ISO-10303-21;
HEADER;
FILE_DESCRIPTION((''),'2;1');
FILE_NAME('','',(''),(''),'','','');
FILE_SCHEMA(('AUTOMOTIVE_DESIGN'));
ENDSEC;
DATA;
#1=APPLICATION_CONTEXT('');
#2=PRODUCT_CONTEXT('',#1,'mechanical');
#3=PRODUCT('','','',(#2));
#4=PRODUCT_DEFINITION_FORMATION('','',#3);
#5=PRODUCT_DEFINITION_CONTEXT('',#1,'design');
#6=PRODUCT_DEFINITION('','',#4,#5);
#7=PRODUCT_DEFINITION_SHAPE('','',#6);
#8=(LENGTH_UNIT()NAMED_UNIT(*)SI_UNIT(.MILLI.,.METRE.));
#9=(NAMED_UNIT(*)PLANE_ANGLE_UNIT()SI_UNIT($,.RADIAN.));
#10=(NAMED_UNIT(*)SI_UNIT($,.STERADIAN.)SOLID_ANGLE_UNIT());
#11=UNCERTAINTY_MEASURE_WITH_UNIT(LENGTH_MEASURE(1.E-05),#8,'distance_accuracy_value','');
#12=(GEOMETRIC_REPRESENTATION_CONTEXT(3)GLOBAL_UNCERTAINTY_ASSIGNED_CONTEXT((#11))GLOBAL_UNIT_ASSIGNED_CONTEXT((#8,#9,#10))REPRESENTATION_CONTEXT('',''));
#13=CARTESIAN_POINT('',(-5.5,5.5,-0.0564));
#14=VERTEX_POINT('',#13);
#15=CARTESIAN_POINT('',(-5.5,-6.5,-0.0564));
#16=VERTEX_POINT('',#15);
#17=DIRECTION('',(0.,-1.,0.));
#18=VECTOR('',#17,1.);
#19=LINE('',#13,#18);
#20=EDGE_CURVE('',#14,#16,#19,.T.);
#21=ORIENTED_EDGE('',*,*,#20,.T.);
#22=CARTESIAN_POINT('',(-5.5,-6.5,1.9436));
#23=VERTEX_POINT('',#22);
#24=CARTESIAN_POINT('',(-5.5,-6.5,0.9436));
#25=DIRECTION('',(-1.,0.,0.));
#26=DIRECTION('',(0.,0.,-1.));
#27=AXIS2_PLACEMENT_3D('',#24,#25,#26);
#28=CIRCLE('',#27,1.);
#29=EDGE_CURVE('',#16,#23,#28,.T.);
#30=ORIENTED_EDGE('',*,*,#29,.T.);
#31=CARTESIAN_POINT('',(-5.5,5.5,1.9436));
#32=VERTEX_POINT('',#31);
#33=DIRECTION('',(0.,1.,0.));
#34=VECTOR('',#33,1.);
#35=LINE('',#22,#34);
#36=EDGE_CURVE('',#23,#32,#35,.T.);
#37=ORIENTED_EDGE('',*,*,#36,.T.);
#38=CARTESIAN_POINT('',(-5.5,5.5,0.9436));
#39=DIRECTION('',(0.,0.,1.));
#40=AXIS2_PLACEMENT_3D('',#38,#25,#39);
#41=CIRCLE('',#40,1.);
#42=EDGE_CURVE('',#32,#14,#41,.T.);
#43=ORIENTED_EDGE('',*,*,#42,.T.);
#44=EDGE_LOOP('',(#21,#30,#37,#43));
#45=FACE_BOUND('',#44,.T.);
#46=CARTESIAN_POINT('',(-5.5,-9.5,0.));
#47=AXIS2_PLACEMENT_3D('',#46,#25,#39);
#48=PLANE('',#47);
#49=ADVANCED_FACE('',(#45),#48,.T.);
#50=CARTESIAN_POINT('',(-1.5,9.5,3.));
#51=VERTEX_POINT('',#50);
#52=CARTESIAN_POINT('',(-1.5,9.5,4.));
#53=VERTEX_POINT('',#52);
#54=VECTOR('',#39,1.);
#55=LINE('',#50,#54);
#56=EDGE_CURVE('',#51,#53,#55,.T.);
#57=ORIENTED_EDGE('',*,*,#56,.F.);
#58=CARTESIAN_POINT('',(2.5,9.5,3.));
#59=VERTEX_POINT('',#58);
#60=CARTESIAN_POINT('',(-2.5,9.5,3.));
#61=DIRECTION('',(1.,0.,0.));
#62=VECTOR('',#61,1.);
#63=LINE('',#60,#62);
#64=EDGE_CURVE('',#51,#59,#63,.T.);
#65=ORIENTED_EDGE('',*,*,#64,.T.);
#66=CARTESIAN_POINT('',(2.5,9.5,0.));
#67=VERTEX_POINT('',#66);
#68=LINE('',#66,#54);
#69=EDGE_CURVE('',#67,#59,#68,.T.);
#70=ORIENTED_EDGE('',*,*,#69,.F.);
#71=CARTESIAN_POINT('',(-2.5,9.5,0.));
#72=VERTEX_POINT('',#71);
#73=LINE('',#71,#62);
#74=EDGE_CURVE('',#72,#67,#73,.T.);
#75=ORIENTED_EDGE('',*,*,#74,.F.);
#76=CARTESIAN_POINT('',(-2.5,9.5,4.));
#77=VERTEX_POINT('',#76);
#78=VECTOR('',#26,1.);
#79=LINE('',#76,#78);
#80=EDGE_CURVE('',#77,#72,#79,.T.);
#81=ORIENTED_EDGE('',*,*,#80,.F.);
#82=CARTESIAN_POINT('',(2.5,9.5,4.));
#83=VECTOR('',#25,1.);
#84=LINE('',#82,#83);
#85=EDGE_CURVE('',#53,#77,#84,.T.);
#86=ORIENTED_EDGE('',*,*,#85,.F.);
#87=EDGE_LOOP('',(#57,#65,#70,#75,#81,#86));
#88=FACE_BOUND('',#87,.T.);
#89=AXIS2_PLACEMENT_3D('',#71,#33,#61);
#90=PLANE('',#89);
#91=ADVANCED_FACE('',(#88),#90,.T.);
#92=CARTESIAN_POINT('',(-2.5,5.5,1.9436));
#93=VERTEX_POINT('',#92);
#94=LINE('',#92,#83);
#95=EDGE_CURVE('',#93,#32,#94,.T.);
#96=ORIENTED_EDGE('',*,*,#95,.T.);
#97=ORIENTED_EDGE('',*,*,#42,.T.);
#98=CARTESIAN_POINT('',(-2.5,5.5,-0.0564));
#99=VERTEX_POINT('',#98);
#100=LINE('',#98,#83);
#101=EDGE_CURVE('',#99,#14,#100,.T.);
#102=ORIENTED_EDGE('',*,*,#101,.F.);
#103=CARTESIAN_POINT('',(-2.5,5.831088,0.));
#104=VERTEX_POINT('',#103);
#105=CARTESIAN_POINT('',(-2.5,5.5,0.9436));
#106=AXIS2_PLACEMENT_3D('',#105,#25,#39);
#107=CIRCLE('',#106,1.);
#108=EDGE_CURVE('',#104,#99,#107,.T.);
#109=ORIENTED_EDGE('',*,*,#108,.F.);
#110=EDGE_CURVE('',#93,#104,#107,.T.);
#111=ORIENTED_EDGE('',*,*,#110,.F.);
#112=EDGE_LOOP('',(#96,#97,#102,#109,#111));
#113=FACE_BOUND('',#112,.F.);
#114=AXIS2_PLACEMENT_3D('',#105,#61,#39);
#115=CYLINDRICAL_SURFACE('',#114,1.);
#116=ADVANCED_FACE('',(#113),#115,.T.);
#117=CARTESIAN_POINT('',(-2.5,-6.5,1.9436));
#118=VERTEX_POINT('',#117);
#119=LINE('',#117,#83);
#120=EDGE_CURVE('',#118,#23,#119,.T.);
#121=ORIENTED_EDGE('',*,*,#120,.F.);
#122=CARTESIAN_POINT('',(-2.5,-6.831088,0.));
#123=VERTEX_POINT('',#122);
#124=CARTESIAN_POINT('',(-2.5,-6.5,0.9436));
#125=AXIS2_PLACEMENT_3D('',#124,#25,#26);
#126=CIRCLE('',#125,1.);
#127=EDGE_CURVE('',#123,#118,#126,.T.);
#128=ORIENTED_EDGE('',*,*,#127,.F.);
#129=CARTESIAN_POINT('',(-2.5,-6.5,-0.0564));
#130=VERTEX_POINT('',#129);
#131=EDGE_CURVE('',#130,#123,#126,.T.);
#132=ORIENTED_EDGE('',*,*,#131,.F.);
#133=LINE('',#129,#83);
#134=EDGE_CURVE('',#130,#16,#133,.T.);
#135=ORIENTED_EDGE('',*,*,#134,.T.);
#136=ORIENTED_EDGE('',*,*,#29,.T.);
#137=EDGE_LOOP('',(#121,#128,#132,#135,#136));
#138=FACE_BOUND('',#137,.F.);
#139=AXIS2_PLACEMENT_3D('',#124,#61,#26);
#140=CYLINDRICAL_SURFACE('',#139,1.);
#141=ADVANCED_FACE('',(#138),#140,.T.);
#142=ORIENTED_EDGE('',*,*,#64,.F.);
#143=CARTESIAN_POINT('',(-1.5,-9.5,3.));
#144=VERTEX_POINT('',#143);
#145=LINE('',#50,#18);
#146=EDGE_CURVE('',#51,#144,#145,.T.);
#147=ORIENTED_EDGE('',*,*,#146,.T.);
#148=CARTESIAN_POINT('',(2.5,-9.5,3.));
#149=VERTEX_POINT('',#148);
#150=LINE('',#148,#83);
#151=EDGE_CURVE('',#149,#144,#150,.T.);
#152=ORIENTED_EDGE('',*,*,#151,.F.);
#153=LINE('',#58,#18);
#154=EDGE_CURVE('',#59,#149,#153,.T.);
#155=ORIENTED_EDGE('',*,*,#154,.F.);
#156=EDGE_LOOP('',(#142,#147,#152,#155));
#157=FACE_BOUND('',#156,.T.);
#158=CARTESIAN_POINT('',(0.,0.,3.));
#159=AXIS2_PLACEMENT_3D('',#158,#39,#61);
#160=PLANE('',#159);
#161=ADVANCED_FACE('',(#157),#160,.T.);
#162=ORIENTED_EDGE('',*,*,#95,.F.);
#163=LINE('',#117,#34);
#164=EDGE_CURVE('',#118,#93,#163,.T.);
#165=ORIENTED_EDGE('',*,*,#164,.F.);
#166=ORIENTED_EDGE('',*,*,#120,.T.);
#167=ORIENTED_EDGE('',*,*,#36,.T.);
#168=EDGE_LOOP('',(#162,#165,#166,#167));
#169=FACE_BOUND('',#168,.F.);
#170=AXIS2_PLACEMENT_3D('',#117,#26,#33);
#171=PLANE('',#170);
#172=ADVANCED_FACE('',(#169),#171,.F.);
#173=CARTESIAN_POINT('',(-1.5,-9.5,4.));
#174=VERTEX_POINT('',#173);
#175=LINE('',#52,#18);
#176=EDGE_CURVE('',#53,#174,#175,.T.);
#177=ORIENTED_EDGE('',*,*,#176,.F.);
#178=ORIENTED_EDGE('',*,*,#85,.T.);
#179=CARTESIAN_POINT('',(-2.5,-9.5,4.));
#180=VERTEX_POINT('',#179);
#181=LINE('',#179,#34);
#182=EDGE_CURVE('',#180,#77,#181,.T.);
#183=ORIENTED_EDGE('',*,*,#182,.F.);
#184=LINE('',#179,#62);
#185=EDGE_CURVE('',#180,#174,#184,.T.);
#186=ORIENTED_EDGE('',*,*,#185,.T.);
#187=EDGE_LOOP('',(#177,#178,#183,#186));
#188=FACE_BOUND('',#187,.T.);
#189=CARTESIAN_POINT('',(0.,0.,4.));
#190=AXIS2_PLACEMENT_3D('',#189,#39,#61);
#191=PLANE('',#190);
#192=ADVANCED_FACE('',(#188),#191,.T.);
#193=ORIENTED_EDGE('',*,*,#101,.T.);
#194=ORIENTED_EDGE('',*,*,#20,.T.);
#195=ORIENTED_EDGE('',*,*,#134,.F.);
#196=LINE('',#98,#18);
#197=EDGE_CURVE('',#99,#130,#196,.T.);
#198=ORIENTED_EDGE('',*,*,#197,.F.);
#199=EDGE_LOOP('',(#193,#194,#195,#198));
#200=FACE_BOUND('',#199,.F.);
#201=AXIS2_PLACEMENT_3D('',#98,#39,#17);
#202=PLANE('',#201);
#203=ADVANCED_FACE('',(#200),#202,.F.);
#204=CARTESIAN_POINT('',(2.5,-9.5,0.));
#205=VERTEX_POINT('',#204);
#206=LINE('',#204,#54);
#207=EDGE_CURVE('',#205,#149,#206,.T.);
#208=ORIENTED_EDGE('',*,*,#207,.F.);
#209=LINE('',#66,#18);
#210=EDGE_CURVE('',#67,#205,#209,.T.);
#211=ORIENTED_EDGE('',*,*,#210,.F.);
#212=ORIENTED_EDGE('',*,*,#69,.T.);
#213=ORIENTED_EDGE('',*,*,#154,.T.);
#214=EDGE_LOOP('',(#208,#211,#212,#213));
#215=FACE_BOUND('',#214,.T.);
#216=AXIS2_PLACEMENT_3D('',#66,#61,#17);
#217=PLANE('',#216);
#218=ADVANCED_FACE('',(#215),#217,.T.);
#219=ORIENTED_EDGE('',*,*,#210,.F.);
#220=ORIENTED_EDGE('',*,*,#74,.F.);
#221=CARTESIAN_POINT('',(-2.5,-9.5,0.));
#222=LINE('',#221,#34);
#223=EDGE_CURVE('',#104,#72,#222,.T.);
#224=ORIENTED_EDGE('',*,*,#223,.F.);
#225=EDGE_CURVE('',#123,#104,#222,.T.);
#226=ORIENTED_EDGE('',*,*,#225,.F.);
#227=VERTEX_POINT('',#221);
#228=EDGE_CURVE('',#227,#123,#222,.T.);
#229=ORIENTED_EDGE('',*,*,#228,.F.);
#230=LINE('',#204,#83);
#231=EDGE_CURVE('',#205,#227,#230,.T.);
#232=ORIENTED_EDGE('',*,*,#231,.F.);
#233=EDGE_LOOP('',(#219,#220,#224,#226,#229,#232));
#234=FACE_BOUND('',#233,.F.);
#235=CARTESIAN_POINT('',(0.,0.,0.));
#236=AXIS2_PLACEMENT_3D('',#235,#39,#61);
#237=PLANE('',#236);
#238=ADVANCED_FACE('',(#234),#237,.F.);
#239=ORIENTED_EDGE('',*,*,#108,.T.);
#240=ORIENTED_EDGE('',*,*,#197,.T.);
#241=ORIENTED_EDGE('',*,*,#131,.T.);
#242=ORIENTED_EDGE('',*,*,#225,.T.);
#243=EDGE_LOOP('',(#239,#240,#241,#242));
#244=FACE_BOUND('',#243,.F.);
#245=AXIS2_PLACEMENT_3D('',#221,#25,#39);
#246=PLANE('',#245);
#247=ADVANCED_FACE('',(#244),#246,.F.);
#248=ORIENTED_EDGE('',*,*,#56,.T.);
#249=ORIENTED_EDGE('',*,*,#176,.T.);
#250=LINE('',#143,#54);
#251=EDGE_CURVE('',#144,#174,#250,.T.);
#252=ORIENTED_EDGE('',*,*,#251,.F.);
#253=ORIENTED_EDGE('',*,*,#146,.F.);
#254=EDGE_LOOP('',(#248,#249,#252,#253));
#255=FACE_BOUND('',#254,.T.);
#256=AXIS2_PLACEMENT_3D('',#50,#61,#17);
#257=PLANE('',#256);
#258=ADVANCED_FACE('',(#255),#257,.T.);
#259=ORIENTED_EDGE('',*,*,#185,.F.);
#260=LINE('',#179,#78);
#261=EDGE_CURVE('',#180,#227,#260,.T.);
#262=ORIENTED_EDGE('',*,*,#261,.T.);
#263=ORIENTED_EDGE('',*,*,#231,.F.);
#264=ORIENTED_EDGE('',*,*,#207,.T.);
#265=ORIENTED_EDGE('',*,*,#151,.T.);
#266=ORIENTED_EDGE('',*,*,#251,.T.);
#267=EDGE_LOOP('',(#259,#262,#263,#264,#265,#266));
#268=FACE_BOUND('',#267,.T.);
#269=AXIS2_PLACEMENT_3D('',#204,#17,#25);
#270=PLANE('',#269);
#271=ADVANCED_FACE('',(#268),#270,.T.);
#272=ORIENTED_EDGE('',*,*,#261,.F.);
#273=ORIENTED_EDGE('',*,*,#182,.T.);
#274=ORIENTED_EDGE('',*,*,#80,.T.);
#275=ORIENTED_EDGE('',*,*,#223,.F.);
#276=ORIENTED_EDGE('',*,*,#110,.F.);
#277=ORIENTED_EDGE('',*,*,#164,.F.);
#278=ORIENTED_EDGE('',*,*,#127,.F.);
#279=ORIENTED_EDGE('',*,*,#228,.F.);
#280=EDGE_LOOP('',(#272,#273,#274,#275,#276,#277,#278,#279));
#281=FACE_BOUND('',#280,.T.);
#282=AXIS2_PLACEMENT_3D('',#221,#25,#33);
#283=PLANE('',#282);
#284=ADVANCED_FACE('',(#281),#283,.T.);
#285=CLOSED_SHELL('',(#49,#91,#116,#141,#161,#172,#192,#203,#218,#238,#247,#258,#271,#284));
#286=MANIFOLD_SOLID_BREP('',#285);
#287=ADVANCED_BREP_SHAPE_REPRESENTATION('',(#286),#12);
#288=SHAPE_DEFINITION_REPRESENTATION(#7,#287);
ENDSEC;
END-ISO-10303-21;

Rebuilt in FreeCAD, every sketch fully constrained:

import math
import FreeCAD as App
import Part
import Sketcher
from FreeCAD import Vector
Q = App.Units.Quantity

doc = App.newDocument("Part")
body = doc.addObject("PartDesign::Body", "Body")

# Sketch on XY plane
sketch1 = doc.addObject("Sketcher::SketchObject", "Sketch")
body.addObject(sketch1)
sketch1.AttachmentSupport = (doc.XY_Plane, [""])
sketch1.MapMode = "FlatFace"
sketch1.addGeometry([
    Part.LineSegment(Vector(-2, -10, 0), Vector(2, -10, 0)),
    Part.LineSegment(Vector(2, -10, 0), Vector(2, 10, 0)),
    Part.LineSegment(Vector(2, 10, 0), Vector(-2, 10, 0)),
    Part.LineSegment(Vector(-2, 10, 0), Vector(-2, -10, 0)),
], False)
sketch1.addConstraint([
    Sketcher.Constraint("Coincident", 0, 2, 1, 1),
    Sketcher.Constraint("Coincident", 1, 2, 2, 1),
    Sketcher.Constraint("Coincident", 2, 2, 3, 1),
    Sketcher.Constraint("Coincident", 3, 2, 0, 1),
    Sketcher.Constraint("Horizontal", 0),
    Sketcher.Constraint("Vertical", 1),
    Sketcher.Constraint("Horizontal", 2),
    Sketcher.Constraint("Vertical", 3),
    Sketcher.Constraint("Symmetric", 0, 2, 2, 2, -1, 1),
    Sketcher.Constraint("DistanceX", 0, 1, 0, 2, Q("5 mm")),
    Sketcher.Constraint("DistanceY", 1, 1, 1, 2, Q("19 mm")),
])
pad1 = doc.addObject("PartDesign::Pad", "Pad")
body.addObject(pad1)
pad1.Profile = sketch1
pad1.Length = 3

# Sketch on XY plane
sketch2 = doc.addObject("Sketcher::SketchObject", "Sketch001")
body.addObject(sketch2)
sketch2.AttachmentSupport = (doc.XY_Plane, [""])
sketch2.MapMode = "FlatFace"
sketch2.AttachmentOffset = App.Placement(Vector(0, 0, 3), App.Rotation())
sketch2.addGeometry([
    Part.LineSegment(Vector(-1.5, -9.5, 0), Vector(-1.5, 9.5, 0)),
    Part.LineSegment(Vector(-1.5, 9.5, 0), Vector(-2.5, 9.5, 0)),
    Part.LineSegment(Vector(-2.5, 9.5, 0), Vector(-2.5, -9.5, 0)),
    Part.LineSegment(Vector(-2.5, -9.5, 0), Vector(-1.5, -9.5, 0)),
], False)
sketch2.addConstraint([
    Sketcher.Constraint("Coincident", 0, 2, 1, 1),
    Sketcher.Constraint("Coincident", 1, 2, 2, 1),
    Sketcher.Constraint("Coincident", 2, 2, 3, 1),
    Sketcher.Constraint("Coincident", 3, 2, 0, 1),
    Sketcher.Constraint("Vertical", 0),
    Sketcher.Constraint("Horizontal", 1),
    Sketcher.Constraint("Vertical", 2),
    Sketcher.Constraint("Horizontal", 3),
    Sketcher.Constraint("DistanceX", 1, 2, 1, 1, Q("1 mm")),
    Sketcher.Constraint("DistanceY", 0, 1, 0, 2, Q("19 mm")),
    Sketcher.Constraint("DistanceX", 0, 2, -1, 1, Q("1.5 mm")),
    Sketcher.Constraint("DistanceY", -1, 1, 0, 2, Q("9.5 mm")),
])
pad2 = doc.addObject("PartDesign::Pad", "Pad001")
body.addObject(pad2)
pad2.Profile = sketch2
pad2.Length = 1

# Sketch on YZ plane
sketch3 = doc.addObject("Sketcher::SketchObject", "Sketch002")
body.addObject(sketch3)
sketch3.AttachmentSupport = (doc.YZ_Plane, [""])
sketch3.MapMode = "FlatFace"
sketch3.AttachmentOffset = App.Placement(Vector(0, 0, -2.5), App.Rotation())
sketch3.addGeometry([
    Part.ArcOfCircle(Part.Circle(Vector(5.5, 0.9, 0), Vector(0, 0, 1), 1), math.radians(-90), math.radians(90)),
    Part.LineSegment(Vector(5.5, -0.1, 0), Vector(-6.5, -0.1, 0)),
    Part.ArcOfCircle(Part.Circle(Vector(-6.5, 0.9, 0), Vector(0, 0, 1), 1), math.radians(90), math.radians(270)),
    Part.LineSegment(Vector(-6.5, 1.9, 0), Vector(5.5, 1.9, 0)),
], False)
sketch3.addConstraint([
    Sketcher.Constraint("Tangent", 0, 1, 1, 1),
    Sketcher.Constraint("Tangent", 1, 2, 2, 2),
    Sketcher.Constraint("Tangent", 2, 1, 3, 1),
    Sketcher.Constraint("Tangent", 3, 2, 0, 2),
    Sketcher.Constraint("Horizontal", 1),
    Sketcher.Constraint("Horizontal", 3),
    Sketcher.Constraint("Radius", 0, Q("1 mm")),
    Sketcher.Constraint("DistanceX", 1, 2, 1, 1, Q("12 mm")),
    Sketcher.Constraint("DistanceX", -1, 1, 0, 3, Q("5.5 mm")),
    Sketcher.Constraint("DistanceY", -1, 1, 0, 3, Q("0.9436 mm")),
])
pad3 = doc.addObject("PartDesign::Pad", "Pad002")
body.addObject(pad3)
pad3.Profile = sketch3
pad3.Length = 3
pad3.Reversed = True

doc.recompute()
